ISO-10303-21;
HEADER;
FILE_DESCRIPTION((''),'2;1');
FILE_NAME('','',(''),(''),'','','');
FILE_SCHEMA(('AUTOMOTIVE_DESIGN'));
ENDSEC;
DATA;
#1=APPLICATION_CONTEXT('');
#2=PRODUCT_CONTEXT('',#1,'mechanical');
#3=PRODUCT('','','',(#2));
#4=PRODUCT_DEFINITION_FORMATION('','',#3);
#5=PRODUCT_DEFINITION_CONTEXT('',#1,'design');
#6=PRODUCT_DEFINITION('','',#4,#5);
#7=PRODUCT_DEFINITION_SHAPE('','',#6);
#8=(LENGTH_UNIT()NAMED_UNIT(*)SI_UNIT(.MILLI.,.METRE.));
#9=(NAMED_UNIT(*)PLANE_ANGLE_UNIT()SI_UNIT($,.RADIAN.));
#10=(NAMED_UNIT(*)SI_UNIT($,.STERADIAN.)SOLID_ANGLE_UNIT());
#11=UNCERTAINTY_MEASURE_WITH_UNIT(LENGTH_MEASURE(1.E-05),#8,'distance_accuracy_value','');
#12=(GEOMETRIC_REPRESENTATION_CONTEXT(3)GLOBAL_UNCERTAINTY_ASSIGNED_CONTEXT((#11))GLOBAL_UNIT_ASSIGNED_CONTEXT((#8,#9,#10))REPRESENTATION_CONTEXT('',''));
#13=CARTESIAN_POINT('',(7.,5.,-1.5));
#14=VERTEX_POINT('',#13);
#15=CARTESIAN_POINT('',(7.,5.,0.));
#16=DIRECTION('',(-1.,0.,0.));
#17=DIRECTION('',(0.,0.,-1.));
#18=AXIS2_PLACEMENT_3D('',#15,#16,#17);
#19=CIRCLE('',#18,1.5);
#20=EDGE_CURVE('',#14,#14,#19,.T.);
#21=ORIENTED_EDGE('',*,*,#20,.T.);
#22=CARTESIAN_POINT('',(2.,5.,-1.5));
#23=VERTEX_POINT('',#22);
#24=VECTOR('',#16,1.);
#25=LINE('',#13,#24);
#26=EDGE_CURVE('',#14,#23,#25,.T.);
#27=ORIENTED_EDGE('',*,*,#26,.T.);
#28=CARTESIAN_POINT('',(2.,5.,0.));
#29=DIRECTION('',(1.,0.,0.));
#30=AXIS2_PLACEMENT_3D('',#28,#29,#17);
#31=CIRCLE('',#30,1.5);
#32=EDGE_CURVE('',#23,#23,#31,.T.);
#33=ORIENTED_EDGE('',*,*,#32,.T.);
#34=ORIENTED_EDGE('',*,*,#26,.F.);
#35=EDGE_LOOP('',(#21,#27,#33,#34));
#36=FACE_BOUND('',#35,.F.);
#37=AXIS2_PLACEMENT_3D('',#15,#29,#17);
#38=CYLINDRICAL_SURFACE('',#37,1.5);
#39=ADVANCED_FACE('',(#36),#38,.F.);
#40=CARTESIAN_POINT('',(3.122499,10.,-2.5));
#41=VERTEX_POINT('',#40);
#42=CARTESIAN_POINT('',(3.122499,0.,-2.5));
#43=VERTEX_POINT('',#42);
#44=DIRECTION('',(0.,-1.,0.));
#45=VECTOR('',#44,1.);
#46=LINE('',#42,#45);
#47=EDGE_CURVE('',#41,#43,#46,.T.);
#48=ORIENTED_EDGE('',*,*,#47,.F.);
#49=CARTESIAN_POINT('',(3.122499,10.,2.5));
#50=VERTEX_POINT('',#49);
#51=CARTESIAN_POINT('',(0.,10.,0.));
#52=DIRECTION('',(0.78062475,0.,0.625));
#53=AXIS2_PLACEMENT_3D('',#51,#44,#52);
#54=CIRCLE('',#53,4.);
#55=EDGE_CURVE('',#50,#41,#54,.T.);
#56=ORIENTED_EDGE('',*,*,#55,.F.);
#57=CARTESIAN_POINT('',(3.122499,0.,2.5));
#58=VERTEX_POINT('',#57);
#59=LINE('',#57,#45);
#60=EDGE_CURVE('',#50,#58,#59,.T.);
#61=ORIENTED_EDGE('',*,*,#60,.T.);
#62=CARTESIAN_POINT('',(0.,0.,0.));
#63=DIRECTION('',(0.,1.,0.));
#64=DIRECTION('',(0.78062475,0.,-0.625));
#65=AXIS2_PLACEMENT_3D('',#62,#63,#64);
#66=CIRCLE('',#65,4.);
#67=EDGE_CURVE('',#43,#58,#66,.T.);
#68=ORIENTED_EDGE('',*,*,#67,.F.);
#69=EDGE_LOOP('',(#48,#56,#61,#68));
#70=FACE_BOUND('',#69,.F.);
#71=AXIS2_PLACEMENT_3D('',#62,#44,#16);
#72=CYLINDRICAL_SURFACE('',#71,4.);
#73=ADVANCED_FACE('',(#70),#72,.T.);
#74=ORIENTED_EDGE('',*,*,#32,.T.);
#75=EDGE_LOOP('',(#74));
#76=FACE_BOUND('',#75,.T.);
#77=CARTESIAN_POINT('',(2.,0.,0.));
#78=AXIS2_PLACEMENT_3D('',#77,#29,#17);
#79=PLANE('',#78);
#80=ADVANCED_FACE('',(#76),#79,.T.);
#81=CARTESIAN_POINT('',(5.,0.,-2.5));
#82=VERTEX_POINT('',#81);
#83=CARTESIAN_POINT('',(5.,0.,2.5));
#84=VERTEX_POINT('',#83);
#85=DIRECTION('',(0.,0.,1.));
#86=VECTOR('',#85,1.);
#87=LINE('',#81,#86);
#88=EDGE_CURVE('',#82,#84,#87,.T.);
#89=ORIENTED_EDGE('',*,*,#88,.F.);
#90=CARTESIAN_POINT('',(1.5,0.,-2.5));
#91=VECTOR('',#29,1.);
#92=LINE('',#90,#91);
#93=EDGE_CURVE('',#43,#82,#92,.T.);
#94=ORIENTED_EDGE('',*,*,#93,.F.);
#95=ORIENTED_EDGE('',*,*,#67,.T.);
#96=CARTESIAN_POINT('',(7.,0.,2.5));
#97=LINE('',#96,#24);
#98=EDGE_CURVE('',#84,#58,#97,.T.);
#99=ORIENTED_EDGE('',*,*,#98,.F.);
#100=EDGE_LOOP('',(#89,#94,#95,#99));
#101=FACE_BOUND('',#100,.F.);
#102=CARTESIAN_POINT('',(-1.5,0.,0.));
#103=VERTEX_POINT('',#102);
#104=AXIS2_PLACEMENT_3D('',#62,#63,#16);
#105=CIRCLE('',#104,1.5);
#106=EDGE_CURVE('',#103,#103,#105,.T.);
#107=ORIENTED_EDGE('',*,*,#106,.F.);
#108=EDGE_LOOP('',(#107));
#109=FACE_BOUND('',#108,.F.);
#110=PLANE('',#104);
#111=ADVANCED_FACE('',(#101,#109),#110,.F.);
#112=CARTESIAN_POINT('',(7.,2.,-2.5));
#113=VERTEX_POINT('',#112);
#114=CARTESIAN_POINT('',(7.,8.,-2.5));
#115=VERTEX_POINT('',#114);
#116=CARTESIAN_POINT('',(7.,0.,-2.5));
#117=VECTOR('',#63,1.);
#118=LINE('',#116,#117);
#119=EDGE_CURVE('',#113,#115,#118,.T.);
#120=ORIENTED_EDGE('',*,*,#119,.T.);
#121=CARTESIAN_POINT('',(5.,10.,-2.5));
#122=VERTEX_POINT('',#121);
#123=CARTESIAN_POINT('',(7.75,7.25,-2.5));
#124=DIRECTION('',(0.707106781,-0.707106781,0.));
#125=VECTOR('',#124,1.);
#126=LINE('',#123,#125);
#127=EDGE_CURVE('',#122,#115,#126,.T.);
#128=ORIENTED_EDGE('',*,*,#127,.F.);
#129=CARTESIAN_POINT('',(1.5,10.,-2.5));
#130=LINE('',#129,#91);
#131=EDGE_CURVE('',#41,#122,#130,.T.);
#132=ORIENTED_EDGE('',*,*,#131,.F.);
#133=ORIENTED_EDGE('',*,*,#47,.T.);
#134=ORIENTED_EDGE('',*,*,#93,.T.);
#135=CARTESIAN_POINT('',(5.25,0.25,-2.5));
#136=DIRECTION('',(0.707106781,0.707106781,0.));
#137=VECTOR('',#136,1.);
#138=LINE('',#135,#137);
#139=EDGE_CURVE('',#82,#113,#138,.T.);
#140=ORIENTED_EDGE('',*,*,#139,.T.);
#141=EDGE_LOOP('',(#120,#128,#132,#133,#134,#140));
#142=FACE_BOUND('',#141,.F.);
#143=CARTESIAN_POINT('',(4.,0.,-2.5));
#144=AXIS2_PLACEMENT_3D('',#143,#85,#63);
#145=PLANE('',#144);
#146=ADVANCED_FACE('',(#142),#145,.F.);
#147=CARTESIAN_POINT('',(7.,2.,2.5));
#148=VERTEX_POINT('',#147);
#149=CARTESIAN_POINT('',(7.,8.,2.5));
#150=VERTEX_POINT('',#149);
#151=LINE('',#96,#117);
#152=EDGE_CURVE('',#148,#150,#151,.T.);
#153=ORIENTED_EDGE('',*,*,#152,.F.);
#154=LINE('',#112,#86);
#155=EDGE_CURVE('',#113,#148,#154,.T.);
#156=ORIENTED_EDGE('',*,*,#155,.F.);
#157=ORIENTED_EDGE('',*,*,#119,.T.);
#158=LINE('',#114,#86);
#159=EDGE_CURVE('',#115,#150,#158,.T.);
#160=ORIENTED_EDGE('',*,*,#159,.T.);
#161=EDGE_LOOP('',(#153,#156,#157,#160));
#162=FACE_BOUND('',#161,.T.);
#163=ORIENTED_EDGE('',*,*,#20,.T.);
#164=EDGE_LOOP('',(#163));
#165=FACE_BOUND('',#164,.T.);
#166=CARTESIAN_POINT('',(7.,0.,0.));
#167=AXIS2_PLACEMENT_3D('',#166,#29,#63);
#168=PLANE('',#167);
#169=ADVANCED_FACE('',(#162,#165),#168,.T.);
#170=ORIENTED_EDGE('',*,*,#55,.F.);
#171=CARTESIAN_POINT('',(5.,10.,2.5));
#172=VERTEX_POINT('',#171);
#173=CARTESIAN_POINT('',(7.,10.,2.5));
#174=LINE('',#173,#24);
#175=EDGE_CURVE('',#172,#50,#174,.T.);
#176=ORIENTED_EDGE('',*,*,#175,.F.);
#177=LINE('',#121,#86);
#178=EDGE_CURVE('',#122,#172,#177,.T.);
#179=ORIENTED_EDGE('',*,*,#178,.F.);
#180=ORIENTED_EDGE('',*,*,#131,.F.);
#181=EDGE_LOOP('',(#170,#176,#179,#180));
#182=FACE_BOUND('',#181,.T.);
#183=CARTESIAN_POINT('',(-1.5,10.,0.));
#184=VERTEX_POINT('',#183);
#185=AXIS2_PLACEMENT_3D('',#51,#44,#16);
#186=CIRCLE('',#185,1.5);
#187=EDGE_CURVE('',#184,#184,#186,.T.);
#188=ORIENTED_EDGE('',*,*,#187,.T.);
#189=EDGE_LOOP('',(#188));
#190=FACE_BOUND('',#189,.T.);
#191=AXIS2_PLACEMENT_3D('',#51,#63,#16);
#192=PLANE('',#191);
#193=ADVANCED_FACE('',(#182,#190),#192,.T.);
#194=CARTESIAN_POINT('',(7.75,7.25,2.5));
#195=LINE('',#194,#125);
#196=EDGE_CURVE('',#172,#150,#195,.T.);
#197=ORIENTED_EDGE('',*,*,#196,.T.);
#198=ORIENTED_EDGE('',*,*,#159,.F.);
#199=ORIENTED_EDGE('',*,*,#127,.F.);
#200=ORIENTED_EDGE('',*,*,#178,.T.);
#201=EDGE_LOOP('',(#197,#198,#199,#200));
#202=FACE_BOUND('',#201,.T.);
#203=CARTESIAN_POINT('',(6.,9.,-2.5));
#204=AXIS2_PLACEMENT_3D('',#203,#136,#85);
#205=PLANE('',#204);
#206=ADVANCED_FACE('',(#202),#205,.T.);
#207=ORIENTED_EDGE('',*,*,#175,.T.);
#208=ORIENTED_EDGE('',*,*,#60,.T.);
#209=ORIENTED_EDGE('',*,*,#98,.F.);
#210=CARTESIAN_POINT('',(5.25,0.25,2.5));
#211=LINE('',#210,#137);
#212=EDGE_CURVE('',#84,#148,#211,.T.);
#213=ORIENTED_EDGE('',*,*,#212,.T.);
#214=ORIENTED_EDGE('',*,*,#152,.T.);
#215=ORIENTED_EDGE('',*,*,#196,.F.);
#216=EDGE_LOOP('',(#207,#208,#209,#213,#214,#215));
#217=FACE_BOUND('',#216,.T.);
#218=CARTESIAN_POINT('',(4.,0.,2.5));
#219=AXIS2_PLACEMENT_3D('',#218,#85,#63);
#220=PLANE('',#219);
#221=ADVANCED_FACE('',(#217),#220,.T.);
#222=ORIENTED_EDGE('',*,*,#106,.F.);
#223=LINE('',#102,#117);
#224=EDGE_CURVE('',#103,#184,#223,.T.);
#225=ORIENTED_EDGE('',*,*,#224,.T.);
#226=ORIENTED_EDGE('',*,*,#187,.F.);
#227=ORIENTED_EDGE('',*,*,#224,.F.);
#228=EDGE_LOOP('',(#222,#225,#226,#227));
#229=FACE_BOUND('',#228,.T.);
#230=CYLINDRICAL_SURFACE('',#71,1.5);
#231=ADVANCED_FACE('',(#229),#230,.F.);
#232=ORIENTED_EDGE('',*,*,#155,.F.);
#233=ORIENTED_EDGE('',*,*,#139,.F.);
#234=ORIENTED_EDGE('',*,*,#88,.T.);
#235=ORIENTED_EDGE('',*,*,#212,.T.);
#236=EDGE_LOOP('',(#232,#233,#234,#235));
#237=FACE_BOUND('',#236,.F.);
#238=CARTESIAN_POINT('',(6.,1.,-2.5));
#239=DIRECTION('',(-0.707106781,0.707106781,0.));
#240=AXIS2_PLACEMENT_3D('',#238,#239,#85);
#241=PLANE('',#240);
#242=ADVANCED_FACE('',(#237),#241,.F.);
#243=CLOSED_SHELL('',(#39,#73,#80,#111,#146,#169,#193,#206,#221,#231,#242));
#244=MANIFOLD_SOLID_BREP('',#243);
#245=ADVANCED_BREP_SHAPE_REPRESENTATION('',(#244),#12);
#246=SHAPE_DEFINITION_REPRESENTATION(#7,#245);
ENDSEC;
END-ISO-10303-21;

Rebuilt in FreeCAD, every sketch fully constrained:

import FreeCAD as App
import Part
import Sketcher

V = App.Vector


def edges_at(feature, points):
    """Names of the edges that pass closest to the given points."""
    edges = feature.Shape.Edges
    near = lambda p: min(range(len(edges)), key=lambda i: edges[i].distToShape(Part.Vertex(*p))[0])
    return sorted({f"Edge{near(p) + 1}" for p in points})


def add_polygon(sketch, points):
    """Adds a closed chain of lines whose ends are joined by coincident constraints."""
    first, n = sketch.GeometryCount, len(points)
    for a, b in zip(points, points[1:] + points[:1]):
        sketch.addGeometry(Part.LineSegment(App.Vector(*a, 0), App.Vector(*b, 0)), False)
    for i in range(n):
        sketch.addConstraint(Sketcher.Constraint("Coincident", first + i, 2, first + (i + 1) % n, 1))

doc = App.newDocument("Part")
body = doc.addObject("PartDesign::Body", "Body")

# Sketch on XZ plane
sketch1 = body.newObject("Sketcher::SketchObject", "Sketch")
sketch1.AttachmentSupport = (doc.getObject("XZ_Plane"), [""])
sketch1.MapMode = "FlatFace"
sketch1.addGeometry([
    Part.Circle(V(0, 0, 0), V(0, 0, 1), 4),
    Part.Circle(V(0, 0, 0), V(0, 0, 1), 1.5),
], False)
sketch1.addConstraint([
    Sketcher.Constraint("Coincident", 0, 3, -1, 1),
    Sketcher.Constraint("Coincident", 1, 3, -1, 1),
    Sketcher.Constraint("Diameter", 0, 8.0),
    Sketcher.Constraint("Diameter", 1, 3.0),
])
pad1 = body.newObject("PartDesign::Pad", "Pad")
pad1.Profile = sketch1
pad1.Length = 10
pad1.Reversed = True

# Sketch on YZ plane
sketch2 = body.newObject("Sketcher::SketchObject", "Sketch001")
sketch2.AttachmentSupport = (doc.getObject("YZ_Plane"), [""])
sketch2.MapMode = "FlatFace"
sketch2.AttachmentOffset = App.Placement(V(0, 0, 4), App.Rotation())
add_polygon(sketch2, [(0, 2), (0, -2), (10, -2), (10, 2)])  # lines 0-3
sketch2.addConstraint([
    Sketcher.Constraint("Vertical", 0),
    Sketcher.Constraint("Horizontal", 1),
    Sketcher.Constraint("Vertical", 2),
    Sketcher.Constraint("Horizontal", 3),
    Sketcher.Constraint("Symmetric", 0, 2, 3, 2, -1, 1),
    Sketcher.Constraint("DistanceY", 0, 2, 0, 1, 5.0),
    Sketcher.Constraint("DistanceX", 1, 1, 1, 2, 10.0),
])
pad2 = body.newObject("PartDesign::Pad", "Pad001")
pad2.Profile = sketch2
pad2.Type = "TwoLengths"
pad2.Length = 3
pad2.Length2 = 2.5

# Sketch on YZ plane
sketch3 = body.newObject("Sketcher::SketchObject", "Sketch002")
sketch3.AttachmentSupport = (doc.getObject("YZ_Plane"), [""])
sketch3.MapMode = "FlatFace"
sketch3.AttachmentOffset = App.Placement(V(0, 0, 7), App.Rotation())
sketch3.addGeometry(Part.Circle(V(5, 0, 0), V(0, 0, 1), 1.5), False)
sketch3.addConstraint([
    Sketcher.Constraint("PointOnObject", 0, 3, -1),
    Sketcher.Constraint("Diameter", 0, 3.0),
    Sketcher.Constraint("DistanceX", -1, 1, 0, 3, 5.0),
])
pocket1 = body.newObject("PartDesign::Pocket", "Pocket")
pocket1.Profile = sketch3
pocket1.Length = 5
doc.recompute()

chamfer = body.newObject("PartDesign::Chamfer", "Chamfer")
chamfer.Base = (pocket1, edges_at(pocket1, [(7, 10, 0), (7, 0, 0)]))
chamfer.Size = 2

doc.recompute()
